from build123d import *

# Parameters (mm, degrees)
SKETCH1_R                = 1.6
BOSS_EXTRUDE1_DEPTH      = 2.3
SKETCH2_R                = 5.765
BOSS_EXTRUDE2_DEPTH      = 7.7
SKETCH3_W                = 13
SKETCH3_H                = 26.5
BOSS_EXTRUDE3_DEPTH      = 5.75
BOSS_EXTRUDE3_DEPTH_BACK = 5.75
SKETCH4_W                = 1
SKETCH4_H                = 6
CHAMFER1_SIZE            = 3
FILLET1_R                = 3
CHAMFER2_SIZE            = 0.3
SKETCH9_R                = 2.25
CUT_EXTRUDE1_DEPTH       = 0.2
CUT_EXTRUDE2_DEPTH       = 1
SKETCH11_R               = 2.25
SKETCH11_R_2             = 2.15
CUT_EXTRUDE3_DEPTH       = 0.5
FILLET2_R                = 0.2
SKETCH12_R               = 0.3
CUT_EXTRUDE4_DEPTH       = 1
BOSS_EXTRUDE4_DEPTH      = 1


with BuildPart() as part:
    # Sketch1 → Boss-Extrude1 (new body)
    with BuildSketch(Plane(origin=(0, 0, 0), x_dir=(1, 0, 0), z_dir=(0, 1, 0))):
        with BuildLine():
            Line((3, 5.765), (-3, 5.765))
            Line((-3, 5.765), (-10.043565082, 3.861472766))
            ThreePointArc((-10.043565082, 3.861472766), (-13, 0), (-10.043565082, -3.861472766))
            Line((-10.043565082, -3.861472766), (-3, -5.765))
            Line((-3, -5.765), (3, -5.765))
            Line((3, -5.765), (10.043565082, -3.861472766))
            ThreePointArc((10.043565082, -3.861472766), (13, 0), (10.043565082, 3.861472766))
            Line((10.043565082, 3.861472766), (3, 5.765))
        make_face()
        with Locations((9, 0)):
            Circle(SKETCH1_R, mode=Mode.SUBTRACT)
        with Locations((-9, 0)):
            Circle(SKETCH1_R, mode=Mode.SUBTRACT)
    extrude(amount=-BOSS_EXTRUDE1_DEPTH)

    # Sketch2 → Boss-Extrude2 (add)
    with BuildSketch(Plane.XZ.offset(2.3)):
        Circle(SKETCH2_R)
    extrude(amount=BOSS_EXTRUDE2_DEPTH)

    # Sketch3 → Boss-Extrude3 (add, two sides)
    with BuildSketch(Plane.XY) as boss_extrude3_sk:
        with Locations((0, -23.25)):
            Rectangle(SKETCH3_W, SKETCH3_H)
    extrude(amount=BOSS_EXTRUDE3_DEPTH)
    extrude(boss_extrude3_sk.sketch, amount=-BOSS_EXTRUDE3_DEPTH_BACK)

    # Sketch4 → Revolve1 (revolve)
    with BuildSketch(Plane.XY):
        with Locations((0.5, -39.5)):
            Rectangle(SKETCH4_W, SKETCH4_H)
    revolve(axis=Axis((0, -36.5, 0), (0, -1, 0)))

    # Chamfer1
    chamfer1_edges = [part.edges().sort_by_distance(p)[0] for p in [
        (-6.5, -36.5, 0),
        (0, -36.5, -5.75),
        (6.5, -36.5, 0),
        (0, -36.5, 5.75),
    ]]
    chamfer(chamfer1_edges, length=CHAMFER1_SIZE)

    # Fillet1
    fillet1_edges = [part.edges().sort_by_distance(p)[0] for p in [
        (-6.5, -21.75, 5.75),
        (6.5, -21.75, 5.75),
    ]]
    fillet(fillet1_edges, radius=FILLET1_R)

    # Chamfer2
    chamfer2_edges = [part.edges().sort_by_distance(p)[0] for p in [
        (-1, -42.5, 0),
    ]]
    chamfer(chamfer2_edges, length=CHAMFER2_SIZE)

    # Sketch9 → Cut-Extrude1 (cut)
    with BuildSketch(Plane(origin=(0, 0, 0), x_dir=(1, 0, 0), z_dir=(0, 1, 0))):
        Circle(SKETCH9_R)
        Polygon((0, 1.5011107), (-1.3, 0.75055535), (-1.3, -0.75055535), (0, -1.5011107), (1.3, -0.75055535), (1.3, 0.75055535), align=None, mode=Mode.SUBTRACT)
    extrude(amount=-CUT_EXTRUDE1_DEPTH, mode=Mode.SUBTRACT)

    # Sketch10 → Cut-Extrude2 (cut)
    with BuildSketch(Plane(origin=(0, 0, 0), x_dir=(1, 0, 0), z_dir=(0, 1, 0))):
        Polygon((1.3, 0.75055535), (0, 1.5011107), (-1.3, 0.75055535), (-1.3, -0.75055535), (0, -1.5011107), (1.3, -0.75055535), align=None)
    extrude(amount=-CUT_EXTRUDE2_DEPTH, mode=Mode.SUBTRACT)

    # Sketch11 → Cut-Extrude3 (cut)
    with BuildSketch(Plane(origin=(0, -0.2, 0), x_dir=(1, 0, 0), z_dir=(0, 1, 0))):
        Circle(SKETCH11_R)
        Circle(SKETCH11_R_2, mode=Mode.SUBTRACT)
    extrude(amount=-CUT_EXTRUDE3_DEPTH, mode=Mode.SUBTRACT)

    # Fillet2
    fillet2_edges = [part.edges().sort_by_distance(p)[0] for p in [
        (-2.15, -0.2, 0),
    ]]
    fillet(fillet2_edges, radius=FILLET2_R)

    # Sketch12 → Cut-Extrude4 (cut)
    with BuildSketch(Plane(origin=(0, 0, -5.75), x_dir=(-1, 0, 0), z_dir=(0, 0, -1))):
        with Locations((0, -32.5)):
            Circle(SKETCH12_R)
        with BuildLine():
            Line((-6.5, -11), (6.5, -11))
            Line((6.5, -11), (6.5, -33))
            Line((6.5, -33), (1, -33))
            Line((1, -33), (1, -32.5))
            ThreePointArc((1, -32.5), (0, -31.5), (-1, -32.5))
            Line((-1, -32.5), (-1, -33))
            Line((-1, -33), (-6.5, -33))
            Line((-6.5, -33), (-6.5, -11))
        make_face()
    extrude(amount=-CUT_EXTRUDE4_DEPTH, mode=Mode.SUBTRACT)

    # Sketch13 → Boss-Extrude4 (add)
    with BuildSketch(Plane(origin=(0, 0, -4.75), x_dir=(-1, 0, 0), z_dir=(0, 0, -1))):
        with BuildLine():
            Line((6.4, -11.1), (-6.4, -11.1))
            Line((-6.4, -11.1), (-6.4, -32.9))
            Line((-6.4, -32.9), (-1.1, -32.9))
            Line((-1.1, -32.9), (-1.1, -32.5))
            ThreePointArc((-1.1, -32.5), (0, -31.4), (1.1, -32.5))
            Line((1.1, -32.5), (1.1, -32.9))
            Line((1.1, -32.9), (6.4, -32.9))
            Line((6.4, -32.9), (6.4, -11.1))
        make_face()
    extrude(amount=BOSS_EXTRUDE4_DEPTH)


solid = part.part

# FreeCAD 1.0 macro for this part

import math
import FreeCAD as App
import Part
import Sketcher

V = App.Vector
Q = App.Units.Quantity


def edges_at(feature, points):
    """Names of the edges that pass closest to the given points."""
    edges = feature.Shape.Edges
    near = lambda p: min(range(len(edges)), key=lambda i: edges[i].distToShape(Part.Vertex(*p))[0])
    return sorted({f"Edge{near(p) + 1}" for p in points})

doc = App.newDocument("Part")
params = doc.addObject("Spreadsheet::Sheet", "Params")
for row, (alias, value) in enumerate([
    ("sketch1_radius", "4 mm"),
    ("sketch1_diameter", "3.2 mm"),
    ("sketch1_width", "6 mm"),
    ("pad1_length", "2.3 mm"),
    ("sketch2_diameter", "11.53 mm"),
    ("pad2_length", "7.7 mm"),
    ("sketch3_width", "13 mm"),
    ("sketch3_height", "26.5 mm"),
    ("pad3_length", "5.75 mm"),
    ("pad3_length2", "5.75 mm"),
    ("sketch4_width", "1 mm"),
    ("sketch4_height", "6 mm"),
    ("revolution_angle", "360 deg"),
    ("chamfer_size", "3 mm"),
    ("fillet_radius", "3 mm"),
    ("chamfer2_size", "0.3 mm"),
    ("sketch5_diameter", "4.5 mm"),
    ("pocket1_length", "0.2 mm"),
    ("pocket2_length", "1 mm"),
    ("sketch7_diameter", "4.5 mm"),
    ("sketch7_diameter2", "4.3 mm"),
    ("pocket3_length", "0.5 mm"),
    ("fillet2_radius", "0.2 mm"),
    ("sketch8_radius", "1 mm"),
    ("sketch8_diameter", "0.6 mm"),
    ("sketch8_width", "13 mm"),
    ("sketch8_height", "22 mm"),
    ("sketch8_height2", "0.5 mm"),
    ("pocket4_length", "1 mm"),
    ("sketch9_radius", "1.1 mm"),
    ("sketch9_width", "12.8 mm"),
    ("sketch9_height", "21.8 mm"),
    ("sketch9_height2", "0.4 mm"),
    ("pad4_length", "1 mm"),
], start=1):
    params.set(f"A{row}", alias)
    params.set(f"B{row}", "=" + value)
    params.setAlias(f"B{row}", alias)

body = doc.addObject("PartDesign::Body", "Body")

# Sketch on XZ plane
sketch1 = body.newObject("Sketcher::SketchObject", "Sketch")
sketch1.AttachmentSupport = (doc.getObject("XZ_Plane"), [""])
sketch1.MapMode = "FlatFace"
sketch1.addGeometry([
    Part.LineSegment(V(3, -5.765, 0), V(-3, -5.765, 0)),  # 0
    Part.LineSegment(V(-3, -5.765, 0), V(-10.043565, -3.861473, 0)),  # 1
    Part.ArcOfCircle(Part.Circle(V(-9, 0, 0), V(0, 0, 1), 4), math.radians(105.122954), math.radians(254.877046)),  # 2
    Part.LineSegment(V(-10.043565, 3.861473, 0), V(-3, 5.765, 0)),  # 3
    Part.LineSegment(V(-3, 5.765, 0), V(3, 5.765, 0)),  # 4
    Part.LineSegment(V(3, 5.765, 0), V(10.043565, 3.861473, 0)),  # 5
    Part.ArcOfCircle(Part.Circle(V(9, 0, 0), V(0, 0, 1), 4), math.radians(-74.877046), math.radians(74.877046)),  # 6
    Part.LineSegment(V(10.043565, -3.861473, 0), V(3, -5.765, 0)),  # 7
    Part.Circle(V(-9, 0, 0), V(0, 0, 1), 1.6),  # 8
    Part.Circle(V(9, 0, 0), V(0, 0, 1), 1.6),  # 9
], False)
sketch1.addConstraint([
    Sketcher.Constraint("Coincident", 0, 2, 1, 1),
    Sketcher.Constraint("Tangent", 1, 2, 2, 2),
    Sketcher.Constraint("Tangent", 2, 1, 3, 1),
    Sketcher.Constraint("Coincident", 3, 2, 4, 1),
    Sketcher.Constraint("Coincident", 4, 2, 5, 1),
    Sketcher.Constraint("Tangent", 5, 2, 6, 2),
    Sketcher.Constraint("Tangent", 6, 1, 7, 1),
    Sketcher.Constraint("Coincident", 7, 2, 0, 1),
    Sketcher.Constraint("Horizontal", 0),
    Sketcher.Constraint("Horizontal", 4),
    Sketcher.Constraint("Coincident", 8, 3, 2, 3),
    Sketcher.Constraint("Coincident", 9, 3, 6, 3),
    Sketcher.Constraint("Equal", 2, 6),
    Sketcher.Constraint("Equal", 8, 9),
    Sketcher.Constraint("Symmetric", 2, 3, 6, 3, -1, 1),
    Sketcher.Constraint("Symmetric", 0, 2, 4, 2, -1, 1),
    Sketcher.Constraint("Symmetric", 2, 1, 5, 2, -2),
    Sketcher.Constraint("Parallel", 3, 7),
    Sketcher.Constraint("Radius", 2, Q("4 mm")),
    Sketcher.Constraint("Diameter", 8, Q("3.2 mm")),
    Sketcher.Constraint("DistanceX", 0, 2, 0, 1, Q("6 mm")),
    Sketcher.Constraint("DistanceX", 2, 3, -1, 1, Q("9 mm")),
    Sketcher.Constraint("DistanceY", 0, 2, 3, 2, Q("11.53 mm")),
])
sketch1.setExpression("Constraints[18]", "Params.sketch1_radius")
sketch1.setExpression("Constraints[19]", "Params.sketch1_diameter")
sketch1.setExpression("Constraints[20]", "Params.sketch1_width")
pad1 = body.newObject("PartDesign::Pad", "Pad")
pad1.Profile = sketch1
pad1.setExpression("Length", "Params.pad1_length")

# Sketch on XZ plane
sketch2 = body.newObject("Sketcher::SketchObject", "Sketch001")
sketch2.AttachmentSupport = (doc.getObject("XZ_Plane"), [""])
sketch2.MapMode = "FlatFace"
sketch2.AttachmentOffset = App.Placement(V(0, 0, 2.3), App.Rotation())
sketch2.addGeometry(Part.Circle(V(0, 0, 0), V(0, 0, 1), 5.765), False)
sketch2.addConstraint([
    Sketcher.Constraint("Coincident", 0, 3, -1, 1),
    Sketcher.Constraint("Diameter", 0, Q("11.53 mm")),
])
sketch2.setExpression("Constraints[1]", "Params.sketch2_diameter")
pad2 = body.newObject("PartDesign::Pad", "Pad001")
pad2.Profile = sketch2
pad2.setExpression("Length", "Params.pad2_length")

# Sketch on XY plane
sketch3 = body.newObject("Sketcher::SketchObject", "Sketch002")
sketch3.AttachmentSupport = (doc.getObject("XY_Plane"), [""])
sketch3.MapMode = "FlatFace"
sketch3.addGeometry([
    Part.LineSegment(V(-6.5, -10, 0), V(-6.5, -36.5, 0)),
    Part.LineSegment(V(-6.5, -36.5, 0), V(6.5, -36.5, 0)),
    Part.LineSegment(V(6.5, -36.5, 0), V(6.5, -10, 0)),
    Part.LineSegment(V(6.5, -10, 0), V(-6.5, -10, 0)),
], False)
sketch3.addConstraint([
    Sketcher.Constraint("Coincident", 0, 2, 1, 1),
    Sketcher.Constraint("Coincident", 1, 2, 2, 1),
    Sketcher.Constraint("Coincident", 2, 2, 3, 1),
    Sketcher.Constraint("Coincident", 3, 2, 0, 1),
    Sketcher.Constraint("Vertical", 0),
    Sketcher.Constraint("Horizontal", 1),
    Sketcher.Constraint("Vertical", 2),
    Sketcher.Constraint("Horizontal", 3),
    Sketcher.Constraint("DistanceX", 1, 1, 1, 2, Q("13 mm")),
    Sketcher.Constraint("DistanceY", 0, 2, 0, 1, Q("26.5 mm")),
    Sketcher.Constraint("DistanceY", 2, 2, -1, 1, Q("10 mm")),
    Sketcher.Constraint("DistanceX", 0, 2, -1, 1, Q("6.5 mm")),
])
sketch3.setExpression("Constraints[8]", "Params.sketch3_width")
sketch3.setExpression("Constraints[9]", "Params.sketch3_height")
pad3 = body.newObject("PartDesign::Pad", "Pad002")
pad3.Profile = sketch3
pad3.Type = "TwoLengths"
pad3.setExpression("Length", "Params.pad3_length")
pad3.setExpression("Length2", "Params.pad3_length2")

# Sketch on XY plane
sketch4 = body.newObject("Sketcher::SketchObject", "Sketch003")
sketch4.AttachmentSupport = (doc.getObject("XY_Plane"), [""])
sketch4.MapMode = "FlatFace"
sketch4.addGeometry([
    Part.LineSegment(V(0, -36.5, 0), V(0, -42.5, 0)),
    Part.LineSegment(V(0, -42.5, 0), V(1, -42.5, 0)),
    Part.LineSegment(V(1, -42.5, 0), V(1, -36.5, 0)),
    Part.LineSegment(V(1, -36.5, 0), V(0, -36.5, 0)),
], False)
sketch4.addConstraint([
    Sketcher.Constraint("Coincident", 0, 2, 1, 1),
    Sketcher.Constraint("Coincident", 1, 2, 2, 1),
    Sketcher.Constraint("Coincident", 2, 2, 3, 1),
    Sketcher.Constraint("Coincident", 3, 2, 0, 1),
    Sketcher.Constraint("Vertical", 0),
    Sketcher.Constraint("Horizontal", 1),
    Sketcher.Constraint("Vertical", 2),
    Sketcher.Constraint("Horizontal", 3),
    Sketcher.Constraint("PointOnObject", 0, 2, -2),
    Sketcher.Constraint("DistanceX", 1, 1, 1, 2, Q("1 mm")),
    Sketcher.Constraint("DistanceY", 0, 2, 0, 1, Q("6 mm")),
    Sketcher.Constraint("DistanceY", 0, 2, -1, 1, Q("42.5 mm")),
])
sketch4.setExpression("Constraints[9]", "Params.sketch4_width")
sketch4.setExpression("Constraints[10]", "Params.sketch4_height")
revolution = body.newObject("PartDesign::Revolution", "Revolution")
revolution.Profile = sketch4
revolution.ReferenceAxis = (sketch4, ["V_Axis"])
revolution.setExpression("Angle", "Params.revolution_angle")
doc.recompute()

chamfer = body.newObject("PartDesign::Chamfer", "Chamfer")
chamfer.Base = (revolution, edges_at(revolution, [
    (-6.5, -36.5, 0),
    (0, -36.5, -5.75),
    (6.5, -36.5, 0),
    (0, -36.5, 5.75),
]))
chamfer.setExpression("Size", "Params.chamfer_size")
doc.recompute()

fillet = body.newObject("PartDesign::Fillet", "Fillet")
fillet.Base = (chamfer, edges_at(chamfer, [(-6.5, -21.75, 5.75), (6.5, -21.75, 5.75)]))
fillet.setExpression("Radius", "Params.fillet_radius")
doc.recompute()

chamfer2 = body.newObject("PartDesign::Chamfer", "Chamfer001")
chamfer2.Base = (fillet, edges_at(fillet, [(-1, -42.5, 0)]))
chamfer2.setExpression("Size", "Params.chamfer2_size")

# Sketch on XZ plane
sketch5 = body.newObject("Sketcher::SketchObject", "Sketch004")
sketch5.AttachmentSupport = (doc.getObject("XZ_Plane"), [""])
sketch5.MapMode = "FlatFace"
sketch5.addGeometry([
    Part.Circle(V(0, 0, 0), V(0, 0, 1), 2.25),  # 0
    Part.LineSegment(V(-1.3, -0.750555, 0), V(0, -1.501111, 0)),  # 1
    Part.LineSegment(V(0, -1.501111, 0), V(1.3, -0.750555, 0)),  # 2
    Part.LineSegment(V(1.3, -0.750555, 0), V(1.3, 0.750555, 0)),  # 3
    Part.LineSegment(V(1.3, 0.750555, 0), V(0, 1.501111, 0)),  # 4
    Part.LineSegment(V(0, 1.501111, 0), V(-1.3, 0.750555, 0)),  # 5
    Part.LineSegment(V(-1.3, 0.750555, 0), V(-1.3, -0.750555, 0)),  # 6
], False)
sketch5.addConstraint([
    Sketcher.Constraint("Coincident", 1, 2, 2, 1),
    Sketcher.Constraint("Coincident", 2, 2, 3, 1),
    Sketcher.Constraint("Coincident", 3, 2, 4, 1),
    Sketcher.Constraint("Coincident", 4, 2, 5, 1),
    Sketcher.Constraint("Coincident", 5, 2, 6, 1),
    Sketcher.Constraint("Coincident", 6, 2, 1, 1),
    Sketcher.Constraint("Vertical", 3),
    Sketcher.Constraint("Vertical", 6),
    Sketcher.Constraint("Coincident", 0, 3, -1, 1),
    Sketcher.Constraint("Symmetric", 1, 2, 4, 2, -1, 1),
    Sketcher.Constraint("Symmetric", 2, 2, 5, 2, -1, 1),
    Sketcher.Constraint("PointOnObject", 1, 2, -2),
    Sketcher.Constraint("Parallel", 1, 4),
    Sketcher.Constraint("Horizontal", 3, 2, 5, 2),
    Sketcher.Constraint("Diameter", 0, Q("4.5 mm")),
    Sketcher.Constraint("Angle", 1, Q("-30 deg")),
    Sketcher.Constraint("DistanceX", -1, 1, 2, 2, Q("1.3 mm")),
    Sketcher.Constraint("DistanceY", 3, 1, 3, 2, Q("1.501111 mm")),
])
sketch5.setExpression("Constraints[14]", "Params.sketch5_diameter")
pocket1 = body.newObject("PartDesign::Pocket", "Pocket")
pocket1.Profile = sketch5
pocket1.setExpression("Length", "Params.pocket1_length")
pocket1.Reversed = True

# Sketch on XZ plane
sketch6 = body.newObject("Sketcher::SketchObject", "Sketch005")
sketch6.AttachmentSupport = (doc.getObject("XZ_Plane"), [""])
sketch6.MapMode = "FlatFace"
sketch6.addGeometry([
    Part.LineSegment(V(1.3, -0.750555, 0), V(0, -1.501111, 0)),  # 0
    Part.LineSegment(V(0, -1.501111, 0), V(-1.3, -0.750555, 0)),  # 1
    Part.LineSegment(V(-1.3, -0.750555, 0), V(-1.3, 0.750555, 0)),  # 2
    Part.LineSegment(V(-1.3, 0.750555, 0), V(0, 1.501111, 0)),  # 3
    Part.LineSegment(V(0, 1.501111, 0), V(1.3, 0.750555, 0)),  # 4
    Part.LineSegment(V(1.3, 0.750555, 0), V(1.3, -0.750555, 0)),  # 5
], False)
sketch6.addConstraint([
    Sketcher.Constraint("Coincident", 0, 2, 1, 1),
    Sketcher.Constraint("Coincident", 1, 2, 2, 1),
    Sketcher.Constraint("Coincident", 2, 2, 3, 1),
    Sketcher.Constraint("Coincident", 3, 2, 4, 1),
    Sketcher.Constraint("Coincident", 4, 2, 5, 1),
    Sketcher.Constraint("Coincident", 5, 2, 0, 1),
    Sketcher.Constraint("Vertical", 2),
    Sketcher.Constraint("Vertical", 5),
    Sketcher.Constraint("Symmetric", 0, 2, 3, 2, -1, 1),
    Sketcher.Constraint("Symmetric", 1, 2, 4, 2, -1, 1),
    Sketcher.Constraint("PointOnObject", 0, 2, -2),
    Sketcher.Constraint("Parallel", 0, 3),
    Sketcher.Constraint("Horizontal", 2, 2, 4, 2),
    Sketcher.Constraint("Angle", 0, Q("-150 deg")),
    Sketcher.Constraint("DistanceX", 1, 2, -1, 1, Q("1.3 mm")),
    Sketcher.Constraint("DistanceY", 2, 1, 2, 2, Q("1.501111 mm")),
])
pocket2 = body.newObject("PartDesign::Pocket", "Pocket001")
pocket2.Profile = sketch6
pocket2.setExpression("Length", "Params.pocket2_length")
pocket2.Reversed = True

# Sketch on XZ plane
sketch7 = body.newObject("Sketcher::SketchObject", "Sketch006")
sketch7.AttachmentSupport = (doc.getObject("XZ_Plane"), [""])
sketch7.MapMode = "FlatFace"
sketch7.AttachmentOffset = App.Placement(V(0, 0, 0.2), App.Rotation())
sketch7.addGeometry([
    Part.Circle(V(0, 0, 0), V(0, 0, 1), 2.25),
    Part.Circle(V(0, 0, 0), V(0, 0, 1), 2.15),
], False)
sketch7.addConstraint([
    Sketcher.Constraint("Coincident", 0, 3, -1, 1),
    Sketcher.Constraint("Coincident", 1, 3, -1, 1),
    Sketcher.Constraint("Diameter", 0, Q("4.5 mm")),
    Sketcher.Constraint("Diameter", 1, Q("4.3 mm")),
])
sketch7.setExpression("Constraints[2]", "Params.sketch7_diameter")
sketch7.setExpression("Constraints[3]", "Params.sketch7_diameter2")
pocket3 = body.newObject("PartDesign::Pocket", "Pocket002")
pocket3.Profile = sketch7
pocket3.setExpression("Length", "Params.pocket3_length")
pocket3.Reversed = True
doc.recompute()

fillet2 = body.newObject("PartDesign::Fillet", "Fillet001")
fillet2.Base = (pocket3, edges_at(pocket3, [(-2.15, -0.2, 0)]))
fillet2.setExpression("Radius", "Params.fillet2_radius")

# Sketch on XY plane
sketch8 = body.newObject("Sketcher::SketchObject", "Sketch007")
sketch8.AttachmentSupport = (doc.getObject("XY_Plane"), [""])
sketch8.MapMode = "FlatFace"
sketch8.AttachmentOffset = App.Placement(V(0, 0, -5.75), App.Rotation())
sketch8.addGeometry([
    Part.Circle(V(0, -32.5, 0), V(0, 0, 1), 0.3),  # 0
    Part.LineSegment(V(-6.5, -11, 0), V(6.5, -11, 0)),  # 1
    Part.LineSegment(V(6.5, -11, 0), V(6.5, -33, 0)),  # 2
    Part.LineSegment(V(6.5, -33, 0), V(1, -33, 0)),  # 3
    Part.LineSegment(V(1, -33, 0), V(1, -32.5, 0)),  # 4
    Part.ArcOfCircle(Part.Circle(V(0, -32.5, 0), V(0, 0, 1), 1), math.radians(0), math.radians(180)),  # 5
    Part.LineSegment(V(-1, -32.5, 0), V(-1, -33, 0)),  # 6
    Part.LineSegment(V(-1, -33, 0), V(-6.5, -33, 0)),  # 7
    Part.LineSegment(V(-6.5, -33, 0), V(-6.5, -11, 0)),  # 8
], False)
sketch8.addConstraint([
    Sketcher.Constraint("Coincident", 1, 2, 2, 1),
    Sketcher.Constraint("Coincident", 2, 2, 3, 1),
    Sketcher.Constraint("Coincident", 3, 2, 4, 1),
    Sketcher.Constraint("Tangent", 4, 2, 5, 1),
    Sketcher.Constraint("Tangent", 5, 2, 6, 1),
    Sketcher.Constraint("Coincident", 6, 2, 7, 1),
    Sketcher.Constraint("Coincident", 7, 2, 8, 1),
    Sketcher.Constraint("Coincident", 8, 2, 1, 1),
    Sketcher.Constraint("Horizontal", 1),
    Sketcher.Constraint("Vertical", 2),
    Sketcher.Constraint("Horizontal", 3),
    Sketcher.Constraint("Vertical", 4),
    Sketcher.Constraint("Vertical", 6),
    Sketcher.Constraint("Horizontal", 7),
    Sketcher.Constraint("Vertical", 8),
    Sketcher.Constraint("Coincident", 5, 3, 0, 3),
    Sketcher.Constraint("Symmetric", 3, 2, 6, 2, -2),
    Sketcher.Constraint("Equal", 3, 7),
    Sketcher.Constraint("Radius", 5, Q("1 mm")),
    Sketcher.Constraint("Diameter", 0, Q("0.6 mm")),
    Sketcher.Constraint("DistanceX", 1, 1, 1, 2, Q("13 mm")),
    Sketcher.Constraint("DistanceY", 2, 2, 2, 1, Q("22 mm")),
    Sketcher.Constraint("DistanceY", 4, 1, 4, 2, Q("0.5 mm")),
    Sketcher.Constraint("DistanceY", 1, 2, -1, 1, Q("11 mm")),
])
sketch8.setExpression("Constraints[18]", "Params.sketch8_radius")
sketch8.setExpression("Constraints[19]", "Params.sketch8_diameter")
sketch8.setExpression("Constraints[20]", "Params.sketch8_width")
sketch8.setExpression("Constraints[21]", "Params.sketch8_height")
sketch8.setExpression("Constraints[22]", "Params.sketch8_height2")
pocket4 = body.newObject("PartDesign::Pocket", "Pocket003")
pocket4.Profile = sketch8
pocket4.setExpression("Length", "Params.pocket4_length")
pocket4.Reversed = True

# Sketch on XY plane
sketch9 = body.newObject("Sketcher::SketchObject", "Sketch008")
sketch9.AttachmentSupport = (doc.getObject("XY_Plane"), [""])
sketch9.MapMode = "FlatFace"
sketch9.AttachmentOffset = App.Placement(V(0, 0, -4.75), App.Rotation())
sketch9.addGeometry([
    Part.LineSegment(V(-6.4, -11.1, 0), V(6.4, -11.1, 0)),  # 0
    Part.LineSegment(V(6.4, -11.1, 0), V(6.4, -32.9, 0)),  # 1
    Part.LineSegment(V(6.4, -32.9, 0), V(1.1, -32.9, 0)),  # 2
    Part.LineSegment(V(1.1, -32.9, 0), V(1.1, -32.5, 0)),  # 3
    Part.ArcOfCircle(Part.Circle(V(0, -32.5, 0), V(0, 0, 1), 1.1), math.radians(0), math.radians(180)),  # 4
    Part.LineSegment(V(-1.1, -32.5, 0), V(-1.1, -32.9, 0)),  # 5
    Part.LineSegment(V(-1.1, -32.9, 0), V(-6.4, -32.9, 0)),  # 6
    Part.LineSegment(V(-6.4, -32.9, 0), V(-6.4, -11.1, 0)),  # 7
], False)
sketch9.addConstraint([
    Sketcher.Constraint("Coincident", 0, 2, 1, 1),
    Sketcher.Constraint("Coincident", 1, 2, 2, 1),
    Sketcher.Constraint("Coincident", 2, 2, 3, 1),
    Sketcher.Constraint("Tangent", 3, 2, 4, 1),
    Sketcher.Constraint("Tangent", 4, 2, 5, 1),
    Sketcher.Constraint("Coincident", 5, 2, 6, 1),
    Sketcher.Constraint("Coincident", 6, 2, 7, 1),
    Sketcher.Constraint("Coincident", 7, 2, 0, 1),
    Sketcher.Constraint("Horizontal", 0),
    Sketcher.Constraint("Vertical", 1),
    Sketcher.Constraint("Horizontal", 2),
    Sketcher.Constraint("Vertical", 3),
    Sketcher.Constraint("Vertical", 5),
    Sketcher.Constraint("Horizontal", 6),
    Sketcher.Constraint("Vertical", 7),
    Sketcher.Constraint("Symmetric", 2, 2, 5, 2, -2),
    Sketcher.Constraint("Equal", 2, 6),
    Sketcher.Constraint("Radius", 4, Q("1.1 mm")),
    Sketcher.Constraint("DistanceX", 0, 1, 0, 2, Q("12.8 mm")),
    Sketcher.Constraint("DistanceY", 1, 2, 1, 1, Q("21.8 mm")),
    Sketcher.Constraint("DistanceY", 3, 1, 3, 2, Q("0.4 mm")),
    Sketcher.Constraint("DistanceY", 4, 3, -1, 1, Q("32.5 mm")),
])
sketch9.setExpression("Constraints[17]", "Params.sketch9_radius")
sketch9.setExpression("Constraints[18]", "Params.sketch9_width")
sketch9.setExpression("Constraints[19]", "Params.sketch9_height")
sketch9.setExpression("Constraints[20]", "Params.sketch9_height2")
pad4 = body.newObject("PartDesign::Pad", "Pad003")
pad4.Profile = sketch9
pad4.setExpression("Length", "Params.pad4_length")
pad4.Reversed = True

doc.recompute()
